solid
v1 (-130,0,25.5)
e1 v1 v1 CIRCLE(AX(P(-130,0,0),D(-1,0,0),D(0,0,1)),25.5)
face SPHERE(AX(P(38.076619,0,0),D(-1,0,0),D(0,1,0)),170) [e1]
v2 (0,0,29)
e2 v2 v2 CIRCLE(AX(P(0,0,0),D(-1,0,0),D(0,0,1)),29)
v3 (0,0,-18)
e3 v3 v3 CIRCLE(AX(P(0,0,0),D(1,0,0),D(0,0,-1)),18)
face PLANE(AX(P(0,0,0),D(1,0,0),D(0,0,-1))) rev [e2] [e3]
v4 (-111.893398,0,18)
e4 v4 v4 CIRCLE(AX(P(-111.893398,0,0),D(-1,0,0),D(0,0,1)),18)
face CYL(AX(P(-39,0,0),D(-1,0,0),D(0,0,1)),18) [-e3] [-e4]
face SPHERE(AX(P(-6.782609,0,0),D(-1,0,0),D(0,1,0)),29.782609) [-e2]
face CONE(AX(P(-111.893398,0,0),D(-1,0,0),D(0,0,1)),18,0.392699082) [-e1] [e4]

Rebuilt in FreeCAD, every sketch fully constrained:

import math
import FreeCAD as App
import Part
import Sketcher

V = App.Vector
Q = App.Units.Quantity

doc = App.newDocument("Part")
body = doc.addObject("PartDesign::Body", "Body")

# Sketch on XY plane
sketch1 = body.newObject("Sketcher::SketchObject", "Sketch")
sketch1.AttachmentSupport = (doc.getObject("XY_Plane"), [""])
sketch1.MapMode = "FlatFace"
sketch1.addGeometry(Part.LineSegment(V(-132, 0, 0), V(0, 0, 0)), False)
sketch1.addGeometry(Part.LineSegment(V(0, 0, 0), V(0, 18, 0)), False)
sketch1.addGeometry(Part.LineSegment(V(0, 18, 0), V(-112, 18, 0)), False)
sketch1.addGeometry(Part.LineSegment(V(-112, 18, 0), V(-130, 26, 0)), False)
sketch1.addGeometry(Part.ArcOfCircle(Part.Circle(V(38, 0, 0), V(0, 0, 1), 170), math.radians(171.37), math.radians(180)), False)
sketch1.addConstraint(Sketcher.Constraint("Coincident", 0, 2, 1, 1))
sketch1.addConstraint(Sketcher.Constraint("Coincident", 1, 2, 2, 1))
sketch1.addConstraint(Sketcher.Constraint("Coincident", 2, 2, 3, 1))
sketch1.addConstraint(Sketcher.Constraint("Coincident", 3, 2, 4, 1))
sketch1.addConstraint(Sketcher.Constraint("Coincident", 4, 2, 0, 1))
sketch1.addConstraint(Sketcher.Constraint("Horizontal", 0))
sketch1.addConstraint(Sketcher.Constraint("Vertical", 1))
sketch1.addConstraint(Sketcher.Constraint("Horizontal", 2))
sketch1.addConstraint(Sketcher.Constraint("Coincident", 0, 2, -1, 1))
sketch1.addConstraint(Sketcher.Constraint("PointOnObject", 4, 3, -1))
sketch1.addConstraint(Sketcher.Constraint("Radius", 4, 170.0))
sketch1.addConstraint(Sketcher.Constraint("DistanceY", 1, 1, 1, 2, 18.0))
sketch1.addConstraint(Sketcher.Constraint("DistanceX", 3, 2, -1, 1, 130.0))
sketch1.addConstraint(Sketcher.Constraint("Angle", 3, Q("157.5 deg")))
sketch1.addConstraint(Sketcher.Constraint("DistanceY", -1, 1, 3, 2, 25.5))
revolution = body.newObject("PartDesign::Revolution", "Revolution")
revolution.Profile = sketch1
revolution.ReferenceAxis = (sketch1, ["H_Axis"])
revolution.Angle = 360

# Sketch on XY plane
sketch2 = body.newObject("Sketcher::SketchObject", "Sketch001")
sketch2.AttachmentSupport = (doc.getObject("XY_Plane"), [""])
sketch2.MapMode = "FlatFace"
sketch2.addGeometry(Part.LineSegment(V(0, 0, 0), V(23, 0, 0)), False)
sketch2.addGeometry(Part.ArcOfCircle(Part.Circle(V(-7, 0, 0), V(0, 0, 1), 30), math.radians(0), math.radians(77)), False)
sketch2.addGeometry(Part.LineSegment(V(0, 29, 0), V(0, 0, 0)), False)
sketch2.addConstraint(Sketcher.Constraint("Coincident", 0, 2, 1, 1))
sketch2.addConstraint(Sketcher.Constraint("Coincident", 1, 2, 2, 1))
sketch2.addConstraint(Sketcher.Constraint("Coincident", 2, 2, 0, 1))
sketch2.addConstraint(Sketcher.Constraint("Horizontal", 0))
sketch2.addConstraint(Sketcher.Constraint("Vertical", 2))
sketch2.addConstraint(Sketcher.Constraint("Coincident", 2, 2, -1, 1))
sketch2.addConstraint(Sketcher.Constraint("PointOnObject", 1, 3, -1))
sketch2.addConstraint(Sketcher.Constraint("DistanceX", 0, 1, 0, 2, 23.0))
sketch2.addConstraint(Sketcher.Constraint("DistanceY", 2, 2, 2, 1, 29.0))
revolution2 = body.newObject("PartDesign::Revolution", "Revolution001")
revolution2.Profile = sketch2
revolution2.ReferenceAxis = (sketch2, ["H_Axis"])
revolution2.Angle = 360

doc.recompute()
